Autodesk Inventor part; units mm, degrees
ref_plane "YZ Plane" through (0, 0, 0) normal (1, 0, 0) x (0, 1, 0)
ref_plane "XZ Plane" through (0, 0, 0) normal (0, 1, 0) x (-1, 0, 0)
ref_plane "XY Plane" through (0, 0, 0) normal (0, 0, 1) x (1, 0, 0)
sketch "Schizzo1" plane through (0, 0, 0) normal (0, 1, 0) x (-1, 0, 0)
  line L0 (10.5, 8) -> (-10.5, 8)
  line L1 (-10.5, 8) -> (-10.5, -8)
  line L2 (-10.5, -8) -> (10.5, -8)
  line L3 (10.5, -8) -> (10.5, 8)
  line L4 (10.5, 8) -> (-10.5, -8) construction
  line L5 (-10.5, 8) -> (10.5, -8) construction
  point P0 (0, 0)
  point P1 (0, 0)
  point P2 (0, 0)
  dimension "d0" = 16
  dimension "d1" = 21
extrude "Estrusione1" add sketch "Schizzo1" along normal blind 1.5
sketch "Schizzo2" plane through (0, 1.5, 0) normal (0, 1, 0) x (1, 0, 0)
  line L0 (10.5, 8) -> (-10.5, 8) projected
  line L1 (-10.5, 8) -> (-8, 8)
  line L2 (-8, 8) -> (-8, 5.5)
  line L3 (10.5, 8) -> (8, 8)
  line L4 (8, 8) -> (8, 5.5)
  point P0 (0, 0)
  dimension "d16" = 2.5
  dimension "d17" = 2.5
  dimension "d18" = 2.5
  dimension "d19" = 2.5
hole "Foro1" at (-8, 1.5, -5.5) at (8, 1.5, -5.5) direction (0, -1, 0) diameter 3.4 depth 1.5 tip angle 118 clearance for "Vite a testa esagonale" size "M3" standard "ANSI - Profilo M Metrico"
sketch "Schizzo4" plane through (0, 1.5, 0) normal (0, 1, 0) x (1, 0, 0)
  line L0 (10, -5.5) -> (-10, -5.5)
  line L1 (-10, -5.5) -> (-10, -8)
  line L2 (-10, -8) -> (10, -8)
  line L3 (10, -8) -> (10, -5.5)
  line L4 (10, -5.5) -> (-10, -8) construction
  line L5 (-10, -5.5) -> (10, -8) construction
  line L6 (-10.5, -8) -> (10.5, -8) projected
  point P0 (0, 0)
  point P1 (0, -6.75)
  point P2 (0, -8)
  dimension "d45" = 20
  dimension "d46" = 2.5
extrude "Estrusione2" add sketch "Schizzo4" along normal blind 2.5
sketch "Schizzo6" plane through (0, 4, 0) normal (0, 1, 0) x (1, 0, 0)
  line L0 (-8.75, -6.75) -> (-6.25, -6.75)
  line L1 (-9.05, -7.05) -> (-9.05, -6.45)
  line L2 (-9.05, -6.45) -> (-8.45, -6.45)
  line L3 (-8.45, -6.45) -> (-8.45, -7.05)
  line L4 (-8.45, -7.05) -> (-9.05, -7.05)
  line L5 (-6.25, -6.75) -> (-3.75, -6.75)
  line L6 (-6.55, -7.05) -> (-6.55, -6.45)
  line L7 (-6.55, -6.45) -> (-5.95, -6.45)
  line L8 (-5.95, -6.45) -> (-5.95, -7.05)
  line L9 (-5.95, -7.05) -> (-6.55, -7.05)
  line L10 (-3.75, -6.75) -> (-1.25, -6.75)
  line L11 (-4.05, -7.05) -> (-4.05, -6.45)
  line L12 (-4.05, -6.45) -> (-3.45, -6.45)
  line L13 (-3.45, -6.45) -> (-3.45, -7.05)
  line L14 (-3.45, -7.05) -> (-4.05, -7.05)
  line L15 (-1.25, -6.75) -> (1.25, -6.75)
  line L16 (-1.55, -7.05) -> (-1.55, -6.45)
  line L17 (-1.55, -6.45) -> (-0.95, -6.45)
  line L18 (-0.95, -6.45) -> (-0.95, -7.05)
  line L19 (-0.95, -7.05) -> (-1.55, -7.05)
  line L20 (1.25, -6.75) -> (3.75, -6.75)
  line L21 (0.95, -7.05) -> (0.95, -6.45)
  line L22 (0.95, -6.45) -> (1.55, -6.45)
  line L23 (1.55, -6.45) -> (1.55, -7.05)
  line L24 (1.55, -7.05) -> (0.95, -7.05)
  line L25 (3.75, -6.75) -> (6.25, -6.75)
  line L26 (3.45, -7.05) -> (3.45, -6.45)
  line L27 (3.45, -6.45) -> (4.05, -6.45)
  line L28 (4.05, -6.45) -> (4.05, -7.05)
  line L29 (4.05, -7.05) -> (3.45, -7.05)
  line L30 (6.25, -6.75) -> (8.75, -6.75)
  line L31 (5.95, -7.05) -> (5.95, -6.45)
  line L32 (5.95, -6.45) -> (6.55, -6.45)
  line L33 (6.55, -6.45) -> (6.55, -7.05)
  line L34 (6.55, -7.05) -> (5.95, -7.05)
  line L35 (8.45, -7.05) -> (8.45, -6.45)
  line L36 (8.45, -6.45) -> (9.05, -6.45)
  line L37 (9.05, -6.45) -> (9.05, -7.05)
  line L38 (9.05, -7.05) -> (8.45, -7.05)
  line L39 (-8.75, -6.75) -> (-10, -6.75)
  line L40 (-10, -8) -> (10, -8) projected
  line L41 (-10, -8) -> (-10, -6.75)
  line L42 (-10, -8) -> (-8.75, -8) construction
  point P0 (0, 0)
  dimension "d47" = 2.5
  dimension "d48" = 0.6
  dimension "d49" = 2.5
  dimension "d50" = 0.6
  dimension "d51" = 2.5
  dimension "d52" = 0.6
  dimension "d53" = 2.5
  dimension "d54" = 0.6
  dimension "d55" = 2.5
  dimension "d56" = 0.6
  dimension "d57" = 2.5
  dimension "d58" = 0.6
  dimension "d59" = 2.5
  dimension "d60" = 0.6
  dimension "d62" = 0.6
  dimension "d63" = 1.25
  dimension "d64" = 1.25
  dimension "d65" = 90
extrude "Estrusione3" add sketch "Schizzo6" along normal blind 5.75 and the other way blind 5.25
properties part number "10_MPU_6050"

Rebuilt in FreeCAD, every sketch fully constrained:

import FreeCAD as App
import Part
import Sketcher
Q = App.Units.Quantity


def add_polygon(sketch, points):
    """Adds a closed chain of lines whose ends are joined by coincident constraints."""
    first, n = sketch.GeometryCount, len(points)
    for a, b in zip(points, points[1:] + points[:1]):
        sketch.addGeometry(Part.LineSegment(App.Vector(*a, 0), App.Vector(*b, 0)), False)
    for i in range(n):
        sketch.addConstraint(Sketcher.Constraint("Coincident", first + i, 2, first + (i + 1) % n, 1))

doc = App.newDocument("Part")
body = doc.addObject("PartDesign::Body", "Body")

# Sketch on XZ plane
sketch1 = doc.addObject("Sketcher::SketchObject", "Sketch")
body.addObject(sketch1)
sketch1.AttachmentSupport = (doc.XZ_Plane, [""])
sketch1.MapMode = "FlatFace"
add_polygon(sketch1, [(-10, -8), (-10, 8), (10, 8), (10, -8)])  # lines 0-3
sketch1.addConstraint(Sketcher.Constraint("Vertical", 0))
sketch1.addConstraint(Sketcher.Constraint("Horizontal", 1))
sketch1.addConstraint(Sketcher.Constraint("Vertical", 2))
sketch1.addConstraint(Sketcher.Constraint("Horizontal", 3))
sketch1.addConstraint(Sketcher.Constraint("Symmetric", 0, 2, 2, 2, -1, 1))
sketch1.addConstraint(Sketcher.Constraint("DistanceX", 1, 1, 1, 2, Q("21 mm")))
sketch1.addConstraint(Sketcher.Constraint("DistanceY", 0, 1, 0, 2, Q("16 mm")))
pad1 = doc.addObject("PartDesign::Pad", "Pad")
body.addObject(pad1)
pad1.Profile = sketch1
pad1.Length = 1.5
pad1.Reversed = True

# Sketch on XZ plane
sketch2 = doc.addObject("Sketcher::SketchObject", "Sketch001")
body.addObject(sketch2)
sketch2.AttachmentSupport = (doc.XZ_Plane, [""])
sketch2.MapMode = "FlatFace"
sketch2.AttachmentOffset = App.Placement(App.Vector(0, 0, -1.5), App.Rotation())
sketch2.addGeometry(Part.Circle(App.Vector(-8, -5.5, 0), App.Vector(0, 0, 1), 1.7), False)
sketch2.addGeometry(Part.Circle(App.Vector(8, -5.5, 0), App.Vector(0, 0, 1), 1.7), False)
sketch2.addConstraint(Sketcher.Constraint("Equal", 0, 1))
sketch2.addConstraint(Sketcher.Constraint("Symmetric", 0, 3, 1, 3, -2))
sketch2.addConstraint(Sketcher.Constraint("Diameter", 0, Q("3.4 mm")))
sketch2.addConstraint(Sketcher.Constraint("DistanceX", 0, 3, -1, 1, Q("8 mm")))
sketch2.addConstraint(Sketcher.Constraint("DistanceY", 0, 3, -1, 1, Q("5.5 mm")))
doc.recompute()
hole = doc.addObject("PartDesign::Hole", "Hole")
body.addObject(hole)
hole.Profile = sketch2
hole.ThreadType = "None"
hole.Diameter = 3.4
hole.DepthType = "Dimension"
hole.Depth = 1.5
hole.DrillPoint = "Angled"
hole.DrillPointAngle = 118
hole.Reversed = True

# Sketch on XZ plane
sketch3 = doc.addObject("Sketcher::SketchObject", "Sketch002")
body.addObject(sketch3)
sketch3.AttachmentSupport = (doc.XZ_Plane, [""])
sketch3.MapMode = "FlatFace"
sketch3.AttachmentOffset = App.Placement(App.Vector(0, 0, -1.5), App.Rotation())
add_polygon(sketch3, [(10, 8), (10, 5.5), (-10, 5.5), (-10, 8)])  # lines 0-3
sketch3.addConstraint(Sketcher.Constraint("Vertical", 0))
sketch3.addConstraint(Sketcher.Constraint("Horizontal", 1))
sketch3.addConstraint(Sketcher.Constraint("Vertical", 2))
sketch3.addConstraint(Sketcher.Constraint("Horizontal", 3))
sketch3.addConstraint(Sketcher.Constraint("DistanceX", 1, 2, 1, 1, Q("20 mm")))
sketch3.addConstraint(Sketcher.Constraint("DistanceY", 0, 2, 0, 1, Q("2.5 mm")))
sketch3.addConstraint(Sketcher.Constraint("DistanceX", -1, 1, 0, 2, Q("10 mm")))
sketch3.addConstraint(Sketcher.Constraint("DistanceY", -1, 1, 2, 2, Q("8 mm")))
pad2 = doc.addObject("PartDesign::Pad", "Pad001")
body.addObject(pad2)
pad2.Profile = sketch3
pad2.Length = 2.5
pad2.Reversed = True

# Sketch on XZ plane
sketch4 = doc.addObject("Sketcher::SketchObject", "Sketch003")
body.addObject(sketch4)
sketch4.AttachmentSupport = (doc.XZ_Plane, [""])
sketch4.MapMode = "FlatFace"
sketch4.AttachmentOffset = App.Placement(App.Vector(0, 0, -4), App.Rotation())
add_polygon(sketch4, [(-9.1, 6.5), (-9.1, 7), (-8.4, 7), (-8.4, 6.5)])  # lines 0-3
add_polygon(sketch4, [(8.4, 6.5), (8.4, 7), (9.1, 7), (9.1, 6.5)])  # lines 4-7
add_polygon(sketch4, [(6, 6.5), (6, 7), (6.5, 7), (6.5, 6.5)])  # lines 8-11
add_polygon(sketch4, [(3.5, 6.5), (3.5, 7), (4, 7), (4, 6.5)])  # lines 12-15
add_polygon(sketch4, [(0.9, 6.5), (0.9, 7), (1.6, 7), (1.6, 6.5)])  # lines 16-19
add_polygon(sketch4, [(-1.6, 6.5), (-1.6, 7), (-0.9, 7), (-0.9, 6.5)])  # lines 20-23
add_polygon(sketch4, [(-4, 6.5), (-4, 7), (-3.5, 7), (-3.5, 6.5)])  # lines 24-27
add_polygon(sketch4, [(-6.5, 6.5), (-6.5, 7), (-6, 7), (-6, 6.5)])  # lines 28-31
sketch4.addConstraint(Sketcher.Constraint("Vertical", 0))
sketch4.addConstraint(Sketcher.Constraint("Horizontal", 1))
sketch4.addConstraint(Sketcher.Constraint("Vertical", 2))
sketch4.addConstraint(Sketcher.Constraint("Horizontal", 3))
sketch4.addConstraint(Sketcher.Constraint("Vertical", 4))
sketch4.addConstraint(Sketcher.Constraint("Horizontal", 5))
sketch4.addConstraint(Sketcher.Constraint("Vertical", 6))
sketch4.addConstraint(Sketcher.Constraint("Horizontal", 7))
sketch4.addConstraint(Sketcher.Constraint("Vertical", 8))
sketch4.addConstraint(Sketcher.Constraint("Horizontal", 9))
sketch4.addConstraint(Sketcher.Constraint("Vertical", 10))
sketch4.addConstraint(Sketcher.Constraint("Horizontal", 11))
sketch4.addConstraint(Sketcher.Constraint("Vertical", 12))
sketch4.addConstraint(Sketcher.Constraint("Horizontal", 13))
sketch4.addConstraint(Sketcher.Constraint("Vertical", 14))
sketch4.addConstraint(Sketcher.Constraint("Horizontal", 15))
sketch4.addConstraint(Sketcher.Constraint("Vertical", 16))
sketch4.addConstraint(Sketcher.Constraint("Horizontal", 17))
sketch4.addConstraint(Sketcher.Constraint("Vertical", 18))
sketch4.addConstraint(Sketcher.Constraint("Horizontal", 19))
sketch4.addConstraint(Sketcher.Constraint("Vertical", 20))
sketch4.addConstraint(Sketcher.Constraint("Horizontal", 21))
sketch4.addConstraint(Sketcher.Constraint("Vertical", 22))
sketch4.addConstraint(Sketcher.Constraint("Horizontal", 23))
sketch4.addConstraint(Sketcher.Constraint("Vertical", 24))
sketch4.addConstraint(Sketcher.Constraint("Horizontal", 25))
sketch4.addConstraint(Sketcher.Constraint("Vertical", 26))
sketch4.addConstraint(Sketcher.Constraint("Horizontal", 27))
sketch4.addConstraint(Sketcher.Constraint("Vertical", 28))
sketch4.addConstraint(Sketcher.Constraint("Horizontal", 29))
sketch4.addConstraint(Sketcher.Constraint("Vertical", 30))
sketch4.addConstraint(Sketcher.Constraint("Horizontal", 31))
sketch4.addConstraint(Sketcher.Constraint("Symmetric", 1, 2, 4, 2, -2))
sketch4.addConstraint(Sketcher.Constraint("Symmetric", 3, 2, 6, 2, -2))
sketch4.addConstraint(Sketcher.Constraint("Symmetric", 17, 2, 20, 2, -2))
sketch4.addConstraint(Sketcher.Constraint("Symmetric", 19, 2, 22, 2, -2))
sketch4.addConstraint(Sketcher.Constraint("Symmetric", 13, 2, 24, 2, -2))
sketch4.addConstraint(Sketcher.Constraint("Symmetric", 15, 2, 26, 2, -2))
sketch4.addConstraint(Sketcher.Constraint("Symmetric", 9, 2, 28, 2, -2))
sketch4.addConstraint(Sketcher.Constraint("Symmetric", 11, 2, 30, 2, -2))
sketch4.addConstraint(Sketcher.Constraint("Horizontal", 5, 2, 8, 2))
sketch4.addConstraint(Sketcher.Constraint("Horizontal", 7, 2, 10, 2))
sketch4.addConstraint(Sketcher.Constraint("Horizontal", 9, 2, 12, 2))
sketch4.addConstraint(Sketcher.Constraint("Horizontal", 11, 2, 14, 2))
sketch4.addConstraint(Sketcher.Constraint("Horizontal", 13, 2, 16, 2))
sketch4.addConstraint(Sketcher.Constraint("Horizontal", 15, 2, 18, 2))
sketch4.addConstraint(Sketcher.Constraint("Equal", 7, 9))
sketch4.addConstraint(Sketcher.Constraint("Equal", 11, 13))
sketch4.addConstraint(Sketcher.Constraint("Equal", 15, 17))
sketch4.addConstraint(Sketcher.Constraint("Equal", 31, 0))
sketch4.addConstraint(Sketcher.Constraint("DistanceX", 1, 1, 1, 2, Q("0.6 mm")))
sketch4.addConstraint(Sketcher.Constraint("DistanceX", 8, 2, 4, 2, Q("2.5 mm")))
sketch4.addConstraint(Sketcher.Constraint("DistanceX", 12, 2, 8, 2, Q("2.5 mm")))
sketch4.addConstraint(Sketcher.Constraint("DistanceX", 16, 2, 12, 2, Q("2.5 mm")))
sketch4.addConstraint(Sketcher.Constraint("DistanceX", 20, 2, 16, 2, Q("2.5 mm")))
sketch4.addConstraint(Sketcher.Constraint("DistanceY", -1, 1, 0, 2, Q("7.05 mm")))
pad3 = doc.addObject("PartDesign::Pad", "Pad002")
body.addObject(pad3)
pad3.Profile = sketch4
pad3.Type = "TwoLengths"
pad3.Length = 5.75
pad3.Length2 = 5.25
pad3.Reversed = True

doc.recompute()
